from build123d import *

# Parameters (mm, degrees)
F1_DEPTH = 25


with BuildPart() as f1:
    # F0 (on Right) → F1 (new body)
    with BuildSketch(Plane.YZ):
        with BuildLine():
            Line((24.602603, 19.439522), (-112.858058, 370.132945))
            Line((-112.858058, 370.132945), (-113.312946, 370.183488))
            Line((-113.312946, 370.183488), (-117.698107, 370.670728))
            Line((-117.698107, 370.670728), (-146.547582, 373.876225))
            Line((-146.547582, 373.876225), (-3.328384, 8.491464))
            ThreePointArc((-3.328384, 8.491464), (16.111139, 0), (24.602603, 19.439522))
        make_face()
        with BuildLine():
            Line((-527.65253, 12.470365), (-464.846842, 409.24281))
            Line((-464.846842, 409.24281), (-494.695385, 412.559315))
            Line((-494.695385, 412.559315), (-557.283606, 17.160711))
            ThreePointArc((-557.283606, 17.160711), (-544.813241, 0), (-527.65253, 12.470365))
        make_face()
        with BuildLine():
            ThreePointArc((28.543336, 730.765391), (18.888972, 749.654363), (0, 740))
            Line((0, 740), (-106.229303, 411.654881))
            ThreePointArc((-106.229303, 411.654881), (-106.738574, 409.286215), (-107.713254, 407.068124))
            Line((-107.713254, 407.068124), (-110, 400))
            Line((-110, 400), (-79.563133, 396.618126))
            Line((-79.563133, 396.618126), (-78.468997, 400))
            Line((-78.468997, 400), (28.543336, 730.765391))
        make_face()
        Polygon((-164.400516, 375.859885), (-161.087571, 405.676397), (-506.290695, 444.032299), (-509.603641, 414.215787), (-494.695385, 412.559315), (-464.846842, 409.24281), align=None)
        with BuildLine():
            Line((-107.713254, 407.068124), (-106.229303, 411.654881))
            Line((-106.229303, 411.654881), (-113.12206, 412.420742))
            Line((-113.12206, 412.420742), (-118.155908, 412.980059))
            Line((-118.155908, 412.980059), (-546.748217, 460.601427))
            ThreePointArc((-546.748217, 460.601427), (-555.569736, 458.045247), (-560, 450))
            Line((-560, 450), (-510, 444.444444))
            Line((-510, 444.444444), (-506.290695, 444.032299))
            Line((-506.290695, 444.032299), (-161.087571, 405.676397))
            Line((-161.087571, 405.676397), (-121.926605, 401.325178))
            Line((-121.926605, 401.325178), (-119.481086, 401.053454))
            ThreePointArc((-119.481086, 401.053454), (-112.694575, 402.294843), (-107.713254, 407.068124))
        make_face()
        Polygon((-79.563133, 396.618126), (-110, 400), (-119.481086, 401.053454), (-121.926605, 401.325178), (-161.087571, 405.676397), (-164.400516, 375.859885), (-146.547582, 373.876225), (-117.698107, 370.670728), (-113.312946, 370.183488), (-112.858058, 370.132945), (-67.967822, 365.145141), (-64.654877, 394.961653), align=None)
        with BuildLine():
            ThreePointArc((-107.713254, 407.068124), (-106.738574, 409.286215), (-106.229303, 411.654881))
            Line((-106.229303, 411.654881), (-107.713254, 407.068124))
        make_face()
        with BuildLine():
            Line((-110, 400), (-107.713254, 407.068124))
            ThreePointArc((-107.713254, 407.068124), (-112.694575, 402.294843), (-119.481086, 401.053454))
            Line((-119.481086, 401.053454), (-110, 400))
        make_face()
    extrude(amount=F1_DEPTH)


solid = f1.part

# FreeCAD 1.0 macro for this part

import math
import FreeCAD as App
import Part
import Sketcher
Q = App.Units.Quantity

doc = App.newDocument("Part")
body = doc.addObject("PartDesign::Body", "Body")

# Sketch on YZ plane
sketch1 = body.newObject("Sketcher::SketchObject", "Sketch")
sketch1.AttachmentSupport = (doc.getObject("YZ_Plane"), [""])
sketch1.MapMode = "FlatFace"
sketch1.addGeometry([
    Part.LineSegment(App.Vector(0, 740, 0), App.Vector(-106.229303, 411.654881, 0)),  # 0
    Part.LineSegment(App.Vector(-106.229303, 411.654881, 0), App.Vector(-113.12206, 412.420742, 0)),  # 1
    Part.LineSegment(App.Vector(-113.12206, 412.420742, 0), App.Vector(-118.155908, 412.980059, 0)),  # 2
    Part.LineSegment(App.Vector(-118.155908, 412.980059, 0), App.Vector(-546.748217, 460.601427, 0)),  # 3
    Part.ArcOfCircle(Part.Circle(App.Vector(-548.073394, 448.674821, 0), App.Vector(0, 0, 1), 12.000001), math.radians(83.659815), math.radians(173.659805)),  # 4
    Part.LineSegment(App.Vector(-560, 450, 0), App.Vector(-510, 444.444444, 0)),  # 5
    Part.LineSegment(App.Vector(-510, 444.444444, 0), App.Vector(-506.290695, 444.032299, 0)),  # 6
    Part.LineSegment(App.Vector(-506.290695, 444.032299, 0), App.Vector(-509.603641, 414.215787, 0)),  # 7
    Part.LineSegment(App.Vector(-509.603641, 414.215787, 0), App.Vector(-494.695385, 412.559315, 0)),  # 8
    Part.LineSegment(App.Vector(-494.695385, 412.559315, 0), App.Vector(-557.283606, 17.160711, 0)),  # 9
    Part.ArcOfCircle(Part.Circle(App.Vector(-542.468068, 14.815538, 0), App.Vector(0, 0, 1), 15), math.radians(171.005198), math.radians(351.005198)),  # 10
    Part.LineSegment(App.Vector(-527.65253, 12.470365, 0), App.Vector(-464.846842, 409.24281, 0)),  # 11
    Part.LineSegment(App.Vector(-464.846842, 409.24281, 0), App.Vector(-164.400516, 375.859885, 0)),  # 12
    Part.LineSegment(App.Vector(-164.400516, 375.859885, 0), App.Vector(-146.547582, 373.876225, 0)),  # 13
    Part.LineSegment(App.Vector(-146.547582, 373.876225, 0), App.Vector(-3.328384, 8.491464, 0)),  # 14
    Part.ArcOfCircle(Part.Circle(App.Vector(10.637109, 13.965493, 0), App.Vector(0, 0, 1), 15), math.radians(-158.5964), math.radians(21.403598)),  # 15
    Part.LineSegment(App.Vector(24.602603, 19.439522, 0), App.Vector(-112.858058, 370.132945, 0)),  # 16
    Part.LineSegment(App.Vector(-112.858058, 370.132945, 0), App.Vector(-67.967822, 365.145141, 0)),  # 17
    Part.LineSegment(App.Vector(-67.967822, 365.145141, 0), App.Vector(-64.654877, 394.961653, 0)),  # 18
    Part.LineSegment(App.Vector(-64.654877, 394.961653, 0), App.Vector(-79.563133, 396.618126, 0)),  # 19
    Part.LineSegment(App.Vector(-79.563133, 396.618126, 0), App.Vector(-78.468997, 400, 0)),  # 20
    Part.LineSegment(App.Vector(-78.468997, 400, 0), App.Vector(28.543336, 730.765391, 0)),  # 21
    Part.ArcOfCircle(Part.Circle(App.Vector(14.271668, 735.382695, 0), App.Vector(0, 0, 1), 15), math.radians(-17.927918), math.radians(162.072077)),  # 22
], False)
sketch1.addConstraint([
    Sketcher.Constraint("Coincident", 0, 2, 1, 1),
    Sketcher.Constraint("Coincident", 1, 2, 2, 1),
    Sketcher.Constraint("Coincident", 2, 2, 3, 1),
    Sketcher.Constraint("Coincident", 3, 2, 4, 1),
    Sketcher.Constraint("Coincident", 4, 2, 5, 1),
    Sketcher.Constraint("Coincident", 5, 2, 6, 1),
    Sketcher.Constraint("Coincident", 6, 2, 7, 1),
    Sketcher.Constraint("Coincident", 7, 2, 8, 1),
    Sketcher.Constraint("Coincident", 8, 2, 9, 1),
    Sketcher.Constraint("Coincident", 9, 2, 10, 1),
    Sketcher.Constraint("Coincident", 10, 2, 11, 1),
    Sketcher.Constraint("Coincident", 11, 2, 12, 1),
    Sketcher.Constraint("Coincident", 12, 2, 13, 1),
    Sketcher.Constraint("Coincident", 13, 2, 14, 1),
    Sketcher.Constraint("Coincident", 14, 2, 15, 1),
    Sketcher.Constraint("Coincident", 15, 2, 16, 1),
    Sketcher.Constraint("Coincident", 16, 2, 17, 1),
    Sketcher.Constraint("Coincident", 17, 2, 18, 1),
    Sketcher.Constraint("Coincident", 18, 2, 19, 1),
    Sketcher.Constraint("Coincident", 19, 2, 20, 1),
    Sketcher.Constraint("Coincident", 20, 2, 21, 1),
    Sketcher.Constraint("Coincident", 21, 2, 22, 1),
    Sketcher.Constraint("Coincident", 22, 2, 0, 1),
    Sketcher.Constraint("PointOnObject", 22, 2, -2),
    Sketcher.Constraint("Radius", 4, Q("12.000001 mm")),
    Sketcher.Constraint("Radius", 10, Q("15 mm")),
    Sketcher.Constraint("Radius", 15, Q("15 mm")),
    Sketcher.Constraint("Radius", 22, Q("15 mm")),
    Sketcher.Constraint("Distance", 7, Q("30 mm")),
    Sketcher.Constraint("Distance", 8, Q("15 mm")),
    Sketcher.Constraint("Distance", 18, Q("30 mm")),
    Sketcher.Constraint("Distance", 19, Q("15 mm")),
    Sketcher.Constraint("DistanceX", 4, 2, -1, 1, Q("560 mm")),
    Sketcher.Constraint("DistanceY", -1, 1, 4, 2, Q("450 mm")),
    Sketcher.Constraint("DistanceX", 5, 2, -1, 1, Q("510 mm")),
    Sketcher.Constraint("DistanceY", -1, 1, 20, 2, Q("400 mm")),
    Sketcher.Constraint("DistanceY", -1, 1, 22, 2, Q("740 mm")),
    Sketcher.Constraint("Distance", 0, Q("345.101698 mm")),
    Sketcher.Constraint("Distance", 13, Q("17.962799 mm")),
    Sketcher.Constraint("DistanceY", -1, 1, 6, 2, Q("444.032299 mm")),
    Sketcher.Constraint("DistanceY", 15, 3, 22, 3, Q("721.417202 mm")),
    Sketcher.Constraint("DistanceY", 1, 2, 5, 2, Q("32.023702 mm")),
    Sketcher.Constraint("DistanceX", 4, 3, 6, 2, Q("41.782699 mm")),
    Sketcher.Constraint("DistanceX", 7, 2, 11, 2, Q("44.756799 mm")),
    Sketcher.Constraint("DistanceX", 13, 2, 14, 2, Q("143.219198 mm")),
    Sketcher.Constraint("DistanceY", 17, 2, 1, 2, Q("47.275601 mm")),
    Sketcher.Constraint("Distance", 6, Q("3.732132 mm")),
    Sketcher.Constraint("DistanceY", -1, 1, 4, 3, Q("448.674821 mm")),
    Sketcher.Constraint("DistanceX", 10, 3, -1, 1, Q("542.468068 mm")),
    Sketcher.Constraint("DistanceX", -1, 1, 15, 3, Q("10.637109 mm")),
    Sketcher.Constraint("DistanceY", -1, 1, 0, 2, Q("411.654881 mm")),
    Sketcher.Constraint("DistanceX", 1, 2, -1, 1, Q("113.12206 mm")),
    Sketcher.Constraint("DistanceY", -1, 1, 2, 2, Q("412.980059 mm")),
    Sketcher.Constraint("DistanceX", 7, 2, -1, 1, Q("509.603641 mm")),
    Sketcher.Constraint("DistanceY", -1, 1, 9, 2, Q("17.160711 mm")),
    Sketcher.Constraint("DistanceX", 10, 2, -1, 1, Q("527.65253 mm")),
    Sketcher.Constraint("DistanceY", -1, 1, 11, 2, Q("409.24281 mm")),
    Sketcher.Constraint("DistanceX", 13, 2, -1, 1, Q("146.547582 mm")),
    Sketcher.Constraint("DistanceX", 16, 2, -1, 1, Q("112.858058 mm")),
    Sketcher.Constraint("DistanceX", 17, 2, -1, 1, Q("67.967822 mm")),
    Sketcher.Constraint("DistanceY", -1, 1, 21, 2, Q("730.765391 mm")),
    Sketcher.Constraint("DistanceX", 4, 3, 22, 3, Q("562.345062 mm")),
    Sketcher.Constraint("DistanceX", 3, 2, 2, 2, Q("428.592309 mm")),
    Sketcher.Constraint("DistanceY", 2, 2, 3, 2, Q("47.621368 mm")),
    Sketcher.Constraint("DistanceY", 10, 3, 3, 2, Q("445.785889 mm")),
    Sketcher.Constraint("DistanceY", 8, 2, 7, 2, Q("1.656472 mm")),
    Sketcher.Constraint("DistanceX", 12, 2, 2, 2, Q("46.244608 mm")),
    Sketcher.Constraint("DistanceY", 12, 2, 8, 2, Q("36.69943 mm")),
    Sketcher.Constraint("DistanceY", 15, 3, 15, 2, Q("5.474029 mm")),
    Sketcher.Constraint("DistanceY", 16, 2, 13, 2, Q("3.74328 mm")),
    Sketcher.Constraint("DistanceY", 17, 2, 18, 2, Q("29.816512 mm")),
    Sketcher.Constraint("DistanceX", 0, 2, 19, 2, Q("26.66617 mm")),
    Sketcher.Constraint("DistanceX", 20, 2, 18, 2, Q("13.81412 mm")),
])
pad1 = body.newObject("PartDesign::Pad", "Pad")
pad1.Profile = sketch1
pad1.Length = 25

doc.recompute()
